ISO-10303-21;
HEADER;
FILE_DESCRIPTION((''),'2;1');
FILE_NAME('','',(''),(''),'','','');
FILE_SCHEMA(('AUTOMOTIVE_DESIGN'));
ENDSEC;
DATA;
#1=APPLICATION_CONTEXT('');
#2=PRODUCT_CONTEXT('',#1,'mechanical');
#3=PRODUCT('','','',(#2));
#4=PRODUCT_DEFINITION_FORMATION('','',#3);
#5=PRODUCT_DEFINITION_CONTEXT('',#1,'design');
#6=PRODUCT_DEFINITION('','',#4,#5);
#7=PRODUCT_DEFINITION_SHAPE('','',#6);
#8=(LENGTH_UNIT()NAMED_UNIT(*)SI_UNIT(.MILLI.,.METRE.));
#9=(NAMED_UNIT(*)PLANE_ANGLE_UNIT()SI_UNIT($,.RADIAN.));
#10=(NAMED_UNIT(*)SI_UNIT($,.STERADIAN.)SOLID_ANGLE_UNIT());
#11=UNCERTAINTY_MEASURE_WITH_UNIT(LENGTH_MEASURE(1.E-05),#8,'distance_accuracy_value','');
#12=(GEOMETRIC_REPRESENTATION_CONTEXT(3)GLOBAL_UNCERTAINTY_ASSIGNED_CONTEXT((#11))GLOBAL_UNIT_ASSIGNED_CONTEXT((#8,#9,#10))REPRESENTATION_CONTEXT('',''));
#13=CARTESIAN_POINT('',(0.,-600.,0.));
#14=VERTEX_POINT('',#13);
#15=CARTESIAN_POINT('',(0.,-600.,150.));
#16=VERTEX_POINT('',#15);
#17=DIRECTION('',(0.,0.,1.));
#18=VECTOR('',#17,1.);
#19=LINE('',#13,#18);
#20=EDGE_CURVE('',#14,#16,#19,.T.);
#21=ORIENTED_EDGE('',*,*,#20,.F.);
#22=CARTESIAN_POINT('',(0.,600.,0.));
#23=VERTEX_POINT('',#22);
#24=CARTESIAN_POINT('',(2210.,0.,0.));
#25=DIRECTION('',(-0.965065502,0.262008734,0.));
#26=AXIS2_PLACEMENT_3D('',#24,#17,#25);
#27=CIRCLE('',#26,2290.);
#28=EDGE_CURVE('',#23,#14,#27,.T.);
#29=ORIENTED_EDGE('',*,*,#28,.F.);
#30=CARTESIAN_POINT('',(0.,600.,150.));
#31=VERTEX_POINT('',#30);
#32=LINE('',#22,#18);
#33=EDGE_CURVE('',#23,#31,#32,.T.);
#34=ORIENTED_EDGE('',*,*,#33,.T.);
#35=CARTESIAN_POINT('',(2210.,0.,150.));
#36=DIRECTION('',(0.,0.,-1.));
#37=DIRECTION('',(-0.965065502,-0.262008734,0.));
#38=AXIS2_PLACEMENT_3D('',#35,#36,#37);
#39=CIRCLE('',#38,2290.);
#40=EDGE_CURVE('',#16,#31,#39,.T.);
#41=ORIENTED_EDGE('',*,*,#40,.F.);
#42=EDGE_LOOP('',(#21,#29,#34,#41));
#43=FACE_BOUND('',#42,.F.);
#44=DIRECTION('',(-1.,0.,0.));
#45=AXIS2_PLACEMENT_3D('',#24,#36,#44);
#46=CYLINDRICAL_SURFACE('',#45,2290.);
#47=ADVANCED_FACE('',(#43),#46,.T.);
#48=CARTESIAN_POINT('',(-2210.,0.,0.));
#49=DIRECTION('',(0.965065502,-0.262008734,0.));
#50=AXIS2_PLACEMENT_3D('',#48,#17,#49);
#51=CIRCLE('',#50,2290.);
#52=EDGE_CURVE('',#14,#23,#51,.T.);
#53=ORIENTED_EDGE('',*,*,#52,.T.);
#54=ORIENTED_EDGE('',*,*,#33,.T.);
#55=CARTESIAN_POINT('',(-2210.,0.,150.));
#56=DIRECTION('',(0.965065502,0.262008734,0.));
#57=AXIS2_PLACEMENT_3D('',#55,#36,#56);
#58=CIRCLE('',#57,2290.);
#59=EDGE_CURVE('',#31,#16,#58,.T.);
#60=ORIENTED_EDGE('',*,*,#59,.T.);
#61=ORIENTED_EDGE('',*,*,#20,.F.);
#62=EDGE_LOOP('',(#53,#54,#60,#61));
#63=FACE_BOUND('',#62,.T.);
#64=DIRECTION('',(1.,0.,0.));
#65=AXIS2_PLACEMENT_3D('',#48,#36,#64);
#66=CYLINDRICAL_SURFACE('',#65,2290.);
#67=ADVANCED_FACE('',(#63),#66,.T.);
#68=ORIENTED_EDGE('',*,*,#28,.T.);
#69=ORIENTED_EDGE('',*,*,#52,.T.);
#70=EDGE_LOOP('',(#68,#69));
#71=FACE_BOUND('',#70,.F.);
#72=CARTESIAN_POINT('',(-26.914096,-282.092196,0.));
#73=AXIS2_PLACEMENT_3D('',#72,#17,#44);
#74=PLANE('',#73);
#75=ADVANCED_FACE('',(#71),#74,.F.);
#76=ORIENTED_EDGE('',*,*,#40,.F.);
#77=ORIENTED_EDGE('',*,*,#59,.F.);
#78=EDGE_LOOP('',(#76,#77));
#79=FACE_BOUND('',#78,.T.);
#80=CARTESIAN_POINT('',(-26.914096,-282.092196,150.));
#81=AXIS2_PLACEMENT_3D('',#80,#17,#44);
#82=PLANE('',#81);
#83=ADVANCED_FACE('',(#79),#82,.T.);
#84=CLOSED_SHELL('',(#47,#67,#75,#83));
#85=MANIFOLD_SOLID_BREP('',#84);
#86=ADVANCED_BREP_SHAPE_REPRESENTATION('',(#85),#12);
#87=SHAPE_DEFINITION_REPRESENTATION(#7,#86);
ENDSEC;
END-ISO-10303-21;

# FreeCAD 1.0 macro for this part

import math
import FreeCAD as App
import Part
import Sketcher

V = App.Vector
Q = App.Units.Quantity

doc = App.newDocument("Part")
body = doc.addObject("PartDesign::Body", "Body")

# Sketch on XY plane
sketch1 = body.newObject("Sketcher::SketchObject", "Sketch")
sketch1.AttachmentSupport = (doc.getObject("XY_Plane"), [""])
sketch1.MapMode = "FlatFace"
sketch1.addGeometry(Part.ArcOfCircle(Part.Circle(V(-2210, 0, 0), V(0, 0, 1), 2290), math.radians(0), math.radians(15.189287)), False)
sketch1.addGeometry(Part.LineSegment(V(0, 600, 0), V(0, 0, 0)), False)
sketch1.addGeometry(Part.LineSegment(V(0, 0, 0), V(80, 0, 0)), False)
sketch1.addConstraint(Sketcher.Constraint("Coincident", 0, 2, 1, 1))
sketch1.addConstraint(Sketcher.Constraint("Coincident", 1, 2, 2, 1))
sketch1.addConstraint(Sketcher.Constraint("Coincident", 2, 2, 0, 1))
sketch1.addConstraint(Sketcher.Constraint("Vertical", 1))
sketch1.addConstraint(Sketcher.Constraint("Horizontal", 2))
sketch1.addConstraint(Sketcher.Constraint("Coincident", 1, 2, -1, 1))
sketch1.addConstraint(Sketcher.Constraint("PointOnObject", 0, 3, -1))
sketch1.addConstraint(Sketcher.Constraint("Radius", 0, Q("2290 mm")))
sketch1.addConstraint(Sketcher.Constraint("DistanceX", 2, 1, 2, 2, Q("80 mm")))
pad1 = body.newObject("PartDesign::Pad", "Pad")
pad1.Profile = sketch1
pad1.Length = 150
body2 = doc.addObject("PartDesign::Body", "Body001")
doc.recompute()

body2.BaseFeature = body
doc.recompute()

mirroring = doc.addObject("Part::Mirroring", "Mirroring")
mirroring.Source = body
mirroring.Base = V(0, 300, 75)
mirroring.Normal = V(-1, 0, 0)
body3 = doc.addObject("PartDesign::Body", "Body002")
body3.BaseFeature = mirroring
boolean = body2.newObject("PartDesign::Boolean", "Boolean")
boolean.Type = "Fuse"
boolean.addObjects([body3])
doc.recompute()
body4 = doc.addObject("PartDesign::Body", "Body003")
doc.recompute()

body4.BaseFeature = body2
doc.recompute()

mirroring2 = doc.addObject("Part::Mirroring", "Mirroring001")
mirroring2.Source = body2
mirroring2.Base = V(0, 0, 0)
mirroring2.Normal = V(0, -1, 0)
body5 = doc.addObject("PartDesign::Body", "Body004")
body5.BaseFeature = mirroring2
boolean2 = body4.newObject("PartDesign::Boolean", "Boolean001")
boolean2.Type = "Fuse"
boolean2.addObjects([body5])
doc.recompute()
mirroring.Visibility = False
mirroring2.Visibility = False

doc.recompute()
